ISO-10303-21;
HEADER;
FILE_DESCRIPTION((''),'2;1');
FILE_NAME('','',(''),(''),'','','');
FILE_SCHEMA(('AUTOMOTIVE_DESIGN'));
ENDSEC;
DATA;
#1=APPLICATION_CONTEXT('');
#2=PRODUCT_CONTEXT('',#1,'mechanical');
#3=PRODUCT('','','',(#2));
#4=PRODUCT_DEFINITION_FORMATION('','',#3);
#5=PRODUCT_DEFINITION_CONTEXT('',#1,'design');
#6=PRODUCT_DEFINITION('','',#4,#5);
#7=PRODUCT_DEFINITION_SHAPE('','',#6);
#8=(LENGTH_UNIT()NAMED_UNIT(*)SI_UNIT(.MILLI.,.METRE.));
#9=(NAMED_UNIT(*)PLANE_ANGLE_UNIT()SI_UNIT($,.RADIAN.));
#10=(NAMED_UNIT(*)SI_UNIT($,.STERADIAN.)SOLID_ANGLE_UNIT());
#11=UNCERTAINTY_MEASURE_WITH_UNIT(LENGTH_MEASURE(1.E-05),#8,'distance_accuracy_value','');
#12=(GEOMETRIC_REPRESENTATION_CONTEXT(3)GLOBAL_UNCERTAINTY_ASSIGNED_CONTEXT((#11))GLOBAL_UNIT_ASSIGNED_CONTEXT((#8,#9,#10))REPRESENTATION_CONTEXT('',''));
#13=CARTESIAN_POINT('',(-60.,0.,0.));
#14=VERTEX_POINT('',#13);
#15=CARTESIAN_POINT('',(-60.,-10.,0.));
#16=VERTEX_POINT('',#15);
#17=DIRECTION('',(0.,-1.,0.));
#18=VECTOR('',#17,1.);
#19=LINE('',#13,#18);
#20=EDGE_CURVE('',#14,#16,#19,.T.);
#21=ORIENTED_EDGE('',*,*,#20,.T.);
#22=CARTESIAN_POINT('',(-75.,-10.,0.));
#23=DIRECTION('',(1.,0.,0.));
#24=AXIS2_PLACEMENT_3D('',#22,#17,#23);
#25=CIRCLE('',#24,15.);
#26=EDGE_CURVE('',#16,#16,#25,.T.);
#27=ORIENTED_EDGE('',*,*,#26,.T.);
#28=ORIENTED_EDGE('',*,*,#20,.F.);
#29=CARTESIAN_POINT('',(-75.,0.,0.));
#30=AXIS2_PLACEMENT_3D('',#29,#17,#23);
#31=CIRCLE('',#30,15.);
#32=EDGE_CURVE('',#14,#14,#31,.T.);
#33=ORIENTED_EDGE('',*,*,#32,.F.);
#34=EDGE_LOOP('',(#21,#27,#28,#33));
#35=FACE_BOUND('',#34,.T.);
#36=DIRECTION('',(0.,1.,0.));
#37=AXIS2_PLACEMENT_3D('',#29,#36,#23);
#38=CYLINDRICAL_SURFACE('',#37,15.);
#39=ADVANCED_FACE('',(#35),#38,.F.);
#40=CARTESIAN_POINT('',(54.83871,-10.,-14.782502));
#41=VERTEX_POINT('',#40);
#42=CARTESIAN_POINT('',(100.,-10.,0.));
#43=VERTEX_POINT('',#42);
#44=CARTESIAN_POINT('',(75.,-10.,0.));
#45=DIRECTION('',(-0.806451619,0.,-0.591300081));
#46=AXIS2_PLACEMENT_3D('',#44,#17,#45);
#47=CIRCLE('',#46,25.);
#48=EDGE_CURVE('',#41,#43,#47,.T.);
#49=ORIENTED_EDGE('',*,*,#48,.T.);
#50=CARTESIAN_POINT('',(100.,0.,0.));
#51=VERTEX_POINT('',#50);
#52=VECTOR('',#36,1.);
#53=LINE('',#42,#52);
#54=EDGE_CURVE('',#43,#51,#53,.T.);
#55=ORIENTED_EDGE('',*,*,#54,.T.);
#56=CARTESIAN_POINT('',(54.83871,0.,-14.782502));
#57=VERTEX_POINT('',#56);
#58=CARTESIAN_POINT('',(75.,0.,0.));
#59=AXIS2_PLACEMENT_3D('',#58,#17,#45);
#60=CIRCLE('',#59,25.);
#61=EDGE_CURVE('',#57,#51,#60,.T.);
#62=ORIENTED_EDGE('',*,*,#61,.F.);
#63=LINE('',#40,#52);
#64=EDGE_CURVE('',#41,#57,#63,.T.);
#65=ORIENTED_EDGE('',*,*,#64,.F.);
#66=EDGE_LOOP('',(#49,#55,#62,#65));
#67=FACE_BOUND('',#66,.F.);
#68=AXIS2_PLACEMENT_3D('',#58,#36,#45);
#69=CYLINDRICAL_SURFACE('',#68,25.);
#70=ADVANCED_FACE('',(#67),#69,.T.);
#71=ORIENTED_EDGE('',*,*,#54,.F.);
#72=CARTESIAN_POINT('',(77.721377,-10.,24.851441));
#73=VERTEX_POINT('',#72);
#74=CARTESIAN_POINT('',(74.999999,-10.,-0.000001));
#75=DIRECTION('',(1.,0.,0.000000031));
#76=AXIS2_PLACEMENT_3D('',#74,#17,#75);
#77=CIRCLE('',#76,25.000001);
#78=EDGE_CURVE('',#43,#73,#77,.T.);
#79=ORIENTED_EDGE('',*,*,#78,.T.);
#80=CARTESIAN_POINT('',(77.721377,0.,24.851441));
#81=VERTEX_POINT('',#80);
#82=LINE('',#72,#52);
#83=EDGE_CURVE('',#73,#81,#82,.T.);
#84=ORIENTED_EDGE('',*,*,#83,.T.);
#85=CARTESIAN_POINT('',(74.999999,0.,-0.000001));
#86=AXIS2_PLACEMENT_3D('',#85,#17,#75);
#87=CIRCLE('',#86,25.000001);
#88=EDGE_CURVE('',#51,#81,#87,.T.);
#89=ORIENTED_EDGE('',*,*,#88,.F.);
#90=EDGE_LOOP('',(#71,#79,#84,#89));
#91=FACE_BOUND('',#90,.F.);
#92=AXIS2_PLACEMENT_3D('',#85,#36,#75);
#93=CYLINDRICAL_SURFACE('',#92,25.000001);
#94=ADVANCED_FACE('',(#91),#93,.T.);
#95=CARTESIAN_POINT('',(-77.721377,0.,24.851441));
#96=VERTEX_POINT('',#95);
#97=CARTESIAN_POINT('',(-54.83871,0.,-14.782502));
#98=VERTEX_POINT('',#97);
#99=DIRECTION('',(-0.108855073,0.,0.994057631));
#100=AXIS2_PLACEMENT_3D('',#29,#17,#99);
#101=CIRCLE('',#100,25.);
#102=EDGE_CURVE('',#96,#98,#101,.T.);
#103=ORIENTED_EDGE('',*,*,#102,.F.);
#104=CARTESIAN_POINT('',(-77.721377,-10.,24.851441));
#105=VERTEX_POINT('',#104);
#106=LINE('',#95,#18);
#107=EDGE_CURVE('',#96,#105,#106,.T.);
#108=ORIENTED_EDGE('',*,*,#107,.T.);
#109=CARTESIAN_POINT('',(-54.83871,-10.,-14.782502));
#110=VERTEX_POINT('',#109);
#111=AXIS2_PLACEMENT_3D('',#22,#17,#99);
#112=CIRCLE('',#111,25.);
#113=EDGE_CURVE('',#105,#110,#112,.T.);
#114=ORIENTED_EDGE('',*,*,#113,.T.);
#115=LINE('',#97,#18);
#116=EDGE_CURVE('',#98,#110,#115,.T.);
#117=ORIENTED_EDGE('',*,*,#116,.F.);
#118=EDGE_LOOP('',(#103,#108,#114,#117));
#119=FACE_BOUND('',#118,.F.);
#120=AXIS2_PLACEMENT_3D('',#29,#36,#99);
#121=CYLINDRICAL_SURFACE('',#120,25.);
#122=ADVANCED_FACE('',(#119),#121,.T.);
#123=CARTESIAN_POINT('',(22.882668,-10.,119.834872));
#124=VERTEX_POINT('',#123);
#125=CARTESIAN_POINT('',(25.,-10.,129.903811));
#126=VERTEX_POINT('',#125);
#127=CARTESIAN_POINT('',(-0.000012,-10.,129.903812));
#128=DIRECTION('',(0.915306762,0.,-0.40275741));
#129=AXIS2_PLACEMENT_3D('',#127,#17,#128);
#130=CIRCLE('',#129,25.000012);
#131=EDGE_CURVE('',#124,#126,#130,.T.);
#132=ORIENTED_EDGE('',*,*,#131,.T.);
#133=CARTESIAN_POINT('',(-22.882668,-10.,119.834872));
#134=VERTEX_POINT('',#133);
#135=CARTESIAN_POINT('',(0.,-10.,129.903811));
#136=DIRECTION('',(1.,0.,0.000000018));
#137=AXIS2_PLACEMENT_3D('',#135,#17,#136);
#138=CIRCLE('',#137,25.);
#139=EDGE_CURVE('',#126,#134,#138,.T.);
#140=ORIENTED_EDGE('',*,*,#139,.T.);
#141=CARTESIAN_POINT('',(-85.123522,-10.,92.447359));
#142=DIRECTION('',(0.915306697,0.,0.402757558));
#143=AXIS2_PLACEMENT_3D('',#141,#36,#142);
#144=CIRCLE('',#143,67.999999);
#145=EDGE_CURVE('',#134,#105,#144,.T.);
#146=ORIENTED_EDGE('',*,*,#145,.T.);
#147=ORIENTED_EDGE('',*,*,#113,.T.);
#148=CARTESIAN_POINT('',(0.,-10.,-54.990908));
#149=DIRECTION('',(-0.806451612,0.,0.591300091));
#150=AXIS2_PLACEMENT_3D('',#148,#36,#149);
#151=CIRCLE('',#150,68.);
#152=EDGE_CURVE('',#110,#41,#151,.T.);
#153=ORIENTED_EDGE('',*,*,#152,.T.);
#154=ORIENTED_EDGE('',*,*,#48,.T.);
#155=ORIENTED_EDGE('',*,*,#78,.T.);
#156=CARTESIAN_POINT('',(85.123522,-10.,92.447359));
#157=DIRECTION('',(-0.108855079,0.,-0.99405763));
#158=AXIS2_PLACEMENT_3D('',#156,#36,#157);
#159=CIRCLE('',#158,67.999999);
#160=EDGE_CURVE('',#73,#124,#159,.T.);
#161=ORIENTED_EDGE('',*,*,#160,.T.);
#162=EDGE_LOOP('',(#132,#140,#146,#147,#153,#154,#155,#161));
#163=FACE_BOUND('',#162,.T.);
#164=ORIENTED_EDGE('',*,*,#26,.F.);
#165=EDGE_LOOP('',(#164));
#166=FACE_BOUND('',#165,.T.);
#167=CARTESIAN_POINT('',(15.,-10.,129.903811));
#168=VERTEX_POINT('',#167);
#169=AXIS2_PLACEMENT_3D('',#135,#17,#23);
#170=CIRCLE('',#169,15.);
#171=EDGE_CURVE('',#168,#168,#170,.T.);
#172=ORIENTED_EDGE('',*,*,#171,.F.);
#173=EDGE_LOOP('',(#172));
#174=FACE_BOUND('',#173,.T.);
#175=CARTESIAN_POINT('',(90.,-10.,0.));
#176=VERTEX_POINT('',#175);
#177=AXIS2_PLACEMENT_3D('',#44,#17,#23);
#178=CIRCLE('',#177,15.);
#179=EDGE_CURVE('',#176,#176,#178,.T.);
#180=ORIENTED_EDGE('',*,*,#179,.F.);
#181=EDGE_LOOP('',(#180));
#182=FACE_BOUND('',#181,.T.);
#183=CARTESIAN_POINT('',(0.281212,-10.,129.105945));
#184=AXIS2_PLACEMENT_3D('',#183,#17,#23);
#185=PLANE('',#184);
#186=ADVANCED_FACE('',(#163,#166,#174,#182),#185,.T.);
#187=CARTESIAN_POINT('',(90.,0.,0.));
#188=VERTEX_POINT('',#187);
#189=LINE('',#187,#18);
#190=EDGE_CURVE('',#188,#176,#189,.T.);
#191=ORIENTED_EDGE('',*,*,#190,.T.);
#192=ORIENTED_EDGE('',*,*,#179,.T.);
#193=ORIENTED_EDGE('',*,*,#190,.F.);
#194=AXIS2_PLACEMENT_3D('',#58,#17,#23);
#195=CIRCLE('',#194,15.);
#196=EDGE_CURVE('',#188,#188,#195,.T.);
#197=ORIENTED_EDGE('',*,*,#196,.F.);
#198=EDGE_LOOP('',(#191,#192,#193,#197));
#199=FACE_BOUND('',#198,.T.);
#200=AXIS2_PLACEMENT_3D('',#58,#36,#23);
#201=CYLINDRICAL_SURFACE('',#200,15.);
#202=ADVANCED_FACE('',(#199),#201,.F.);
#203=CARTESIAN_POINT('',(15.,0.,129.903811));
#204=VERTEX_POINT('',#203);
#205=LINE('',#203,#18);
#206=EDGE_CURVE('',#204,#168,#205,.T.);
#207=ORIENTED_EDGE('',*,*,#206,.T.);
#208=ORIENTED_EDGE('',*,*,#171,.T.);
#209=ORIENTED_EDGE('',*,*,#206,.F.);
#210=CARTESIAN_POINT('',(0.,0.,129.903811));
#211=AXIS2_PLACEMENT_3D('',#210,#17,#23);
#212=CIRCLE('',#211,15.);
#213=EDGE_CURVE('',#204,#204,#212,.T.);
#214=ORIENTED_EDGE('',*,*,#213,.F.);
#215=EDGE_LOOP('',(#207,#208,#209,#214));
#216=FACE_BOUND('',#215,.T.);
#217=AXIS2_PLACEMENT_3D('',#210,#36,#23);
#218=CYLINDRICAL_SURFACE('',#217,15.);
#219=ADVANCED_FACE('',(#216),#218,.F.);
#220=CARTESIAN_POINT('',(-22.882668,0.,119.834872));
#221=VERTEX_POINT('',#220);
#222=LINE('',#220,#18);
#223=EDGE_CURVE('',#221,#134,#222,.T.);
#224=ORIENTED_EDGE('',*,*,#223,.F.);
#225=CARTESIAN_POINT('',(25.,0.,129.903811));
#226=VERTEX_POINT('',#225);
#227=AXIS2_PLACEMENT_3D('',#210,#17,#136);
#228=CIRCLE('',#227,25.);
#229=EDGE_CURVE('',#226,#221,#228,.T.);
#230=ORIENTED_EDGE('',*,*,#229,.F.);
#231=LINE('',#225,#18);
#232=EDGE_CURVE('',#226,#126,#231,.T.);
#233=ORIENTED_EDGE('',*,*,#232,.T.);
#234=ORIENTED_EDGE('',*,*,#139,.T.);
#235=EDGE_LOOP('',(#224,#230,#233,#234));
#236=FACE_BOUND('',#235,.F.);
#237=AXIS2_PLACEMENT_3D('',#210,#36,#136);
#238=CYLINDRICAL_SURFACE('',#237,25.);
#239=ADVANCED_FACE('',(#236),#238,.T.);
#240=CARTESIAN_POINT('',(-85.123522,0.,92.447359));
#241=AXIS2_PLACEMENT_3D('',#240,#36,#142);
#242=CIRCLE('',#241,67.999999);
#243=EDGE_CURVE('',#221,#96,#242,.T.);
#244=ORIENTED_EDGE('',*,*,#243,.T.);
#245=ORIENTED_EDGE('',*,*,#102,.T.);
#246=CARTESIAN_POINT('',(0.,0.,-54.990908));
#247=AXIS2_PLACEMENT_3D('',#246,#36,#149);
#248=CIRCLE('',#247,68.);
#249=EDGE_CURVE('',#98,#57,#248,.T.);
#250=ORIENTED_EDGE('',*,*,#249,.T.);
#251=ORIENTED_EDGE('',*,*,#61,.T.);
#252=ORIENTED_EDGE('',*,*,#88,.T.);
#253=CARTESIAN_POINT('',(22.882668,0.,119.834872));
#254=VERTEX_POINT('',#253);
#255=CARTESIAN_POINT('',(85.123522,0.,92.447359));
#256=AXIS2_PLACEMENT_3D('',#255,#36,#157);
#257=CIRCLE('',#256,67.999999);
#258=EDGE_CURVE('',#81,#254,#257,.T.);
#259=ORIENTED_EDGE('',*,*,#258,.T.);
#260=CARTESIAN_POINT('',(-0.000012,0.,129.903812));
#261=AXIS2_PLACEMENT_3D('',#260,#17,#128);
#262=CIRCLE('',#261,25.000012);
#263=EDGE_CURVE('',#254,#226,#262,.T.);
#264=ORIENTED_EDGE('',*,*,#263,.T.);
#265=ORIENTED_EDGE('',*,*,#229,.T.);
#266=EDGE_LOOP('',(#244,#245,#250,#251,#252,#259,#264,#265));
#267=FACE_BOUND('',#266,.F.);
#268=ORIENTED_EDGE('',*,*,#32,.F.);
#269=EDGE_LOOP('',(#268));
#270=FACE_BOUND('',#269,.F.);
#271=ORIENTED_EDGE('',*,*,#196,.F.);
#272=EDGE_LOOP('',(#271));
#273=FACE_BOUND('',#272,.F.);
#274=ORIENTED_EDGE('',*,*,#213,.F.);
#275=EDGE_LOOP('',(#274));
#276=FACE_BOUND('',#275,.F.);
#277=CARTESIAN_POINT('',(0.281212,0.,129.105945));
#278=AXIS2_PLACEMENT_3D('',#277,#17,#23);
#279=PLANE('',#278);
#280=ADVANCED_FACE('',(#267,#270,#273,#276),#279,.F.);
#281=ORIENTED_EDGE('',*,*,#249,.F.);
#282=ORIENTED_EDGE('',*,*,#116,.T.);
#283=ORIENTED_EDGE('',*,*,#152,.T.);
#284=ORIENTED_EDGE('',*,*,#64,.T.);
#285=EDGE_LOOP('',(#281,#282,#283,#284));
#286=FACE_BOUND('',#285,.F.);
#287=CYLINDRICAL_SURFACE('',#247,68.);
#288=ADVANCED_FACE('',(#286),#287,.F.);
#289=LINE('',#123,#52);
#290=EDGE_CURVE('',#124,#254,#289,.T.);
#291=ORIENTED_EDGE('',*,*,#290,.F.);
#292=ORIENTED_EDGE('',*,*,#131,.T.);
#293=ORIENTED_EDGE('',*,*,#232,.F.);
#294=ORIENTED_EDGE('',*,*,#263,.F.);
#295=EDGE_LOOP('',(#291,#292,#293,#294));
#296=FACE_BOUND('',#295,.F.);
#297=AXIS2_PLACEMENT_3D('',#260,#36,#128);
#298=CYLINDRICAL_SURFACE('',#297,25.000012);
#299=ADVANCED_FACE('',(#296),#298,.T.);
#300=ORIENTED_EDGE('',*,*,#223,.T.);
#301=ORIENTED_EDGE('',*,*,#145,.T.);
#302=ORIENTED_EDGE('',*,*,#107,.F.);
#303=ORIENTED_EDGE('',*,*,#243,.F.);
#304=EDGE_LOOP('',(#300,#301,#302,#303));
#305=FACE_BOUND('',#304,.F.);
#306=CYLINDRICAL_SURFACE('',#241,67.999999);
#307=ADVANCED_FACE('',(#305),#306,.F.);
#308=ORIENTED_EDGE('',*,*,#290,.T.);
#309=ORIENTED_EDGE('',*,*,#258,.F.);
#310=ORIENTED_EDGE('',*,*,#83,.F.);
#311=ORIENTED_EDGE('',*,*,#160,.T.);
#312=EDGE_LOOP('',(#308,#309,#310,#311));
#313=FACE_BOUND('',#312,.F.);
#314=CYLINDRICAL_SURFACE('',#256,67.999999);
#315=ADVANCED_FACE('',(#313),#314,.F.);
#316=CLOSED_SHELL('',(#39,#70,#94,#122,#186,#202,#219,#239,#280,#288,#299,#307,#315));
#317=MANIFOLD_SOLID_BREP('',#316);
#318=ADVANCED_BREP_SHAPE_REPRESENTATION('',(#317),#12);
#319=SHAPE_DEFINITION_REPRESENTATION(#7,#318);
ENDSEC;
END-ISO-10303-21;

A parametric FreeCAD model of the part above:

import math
import FreeCAD as App
import Part
import Sketcher

V = App.Vector
Q = App.Units.Quantity

doc = App.newDocument("Part")
body = doc.addObject("PartDesign::Body", "Body")

# Sketch on XZ plane
sketch1 = body.newObject("Sketcher::SketchObject", "Sketch")
sketch1.AttachmentSupport = (doc.getObject("XZ_Plane"), [""])
sketch1.MapMode = "FlatFace"
sketch1.addGeometry([
    Part.ArcOfCircle(Part.Circle(V(-0.000012, 129.903812, 0), V(0, 0, 1), 25.000012), math.radians(-23.750671), math.radians(-0.000003)),  # 0
    Part.ArcOfCircle(Part.Circle(V(0, 129.903811, 0), V(0, 0, 1), 25), math.radians(0.000001), math.radians(203.750679)),  # 1
    Part.ArcOfCircle(Part.Circle(V(-85.123522, 92.447359, 0), V(0, 0, 1), 67.999999), math.radians(-83.75068), math.radians(23.75068)),  # 2
    Part.ArcOfCircle(Part.Circle(V(-75, 0, 0), V(0, 0, 1), 25), math.radians(96.24932), math.radians(323.750679)),  # 3
    Part.ArcOfCircle(Part.Circle(V(0, -54.990908, 0), V(0, 0, 1), 68), math.radians(36.249321), math.radians(143.750679)),  # 4
    Part.ArcOfCircle(Part.Circle(V(75, 0, 0), V(0, 0, 1), 25), math.radians(-143.75068), math.radians(0)),  # 5
    Part.ArcOfCircle(Part.Circle(V(74.999999, -0.000001, 0), V(0, 0, 1), 25.000001), math.radians(0.000002), math.radians(83.750677)),  # 6
    Part.ArcOfCircle(Part.Circle(V(85.123522, 92.447359, 0), V(0, 0, 1), 67.999999), math.radians(156.24932), math.radians(263.75068)),  # 7
    Part.Circle(V(-75, 0, 0), V(0, 0, 1), 15),  # 8
    Part.Circle(V(75, 0, 0), V(0, 0, 1), 15),  # 9
    Part.Circle(V(0, 129.903811, 0), V(0, 0, 1), 15),  # 10
], False)
sketch1.addConstraint([
    Sketcher.Constraint("Tangent", 0, 2, 1, 1),
    Sketcher.Constraint("Tangent", 1, 2, 2, 2),
    Sketcher.Constraint("Tangent", 2, 1, 3, 1),
    Sketcher.Constraint("Tangent", 3, 2, 4, 2),
    Sketcher.Constraint("Tangent", 4, 1, 5, 1),
    Sketcher.Constraint("Tangent", 5, 2, 6, 1),
    Sketcher.Constraint("Tangent", 6, 2, 7, 2),
    Sketcher.Constraint("Tangent", 7, 1, 0, 1),
    Sketcher.Constraint("Coincident", 8, 3, 3, 3),
    Sketcher.Constraint("Coincident", 9, 3, 5, 3),
    Sketcher.Constraint("Coincident", 10, 3, 1, 3),
    Sketcher.Constraint("Equal", 1, 3),
    Sketcher.Constraint("Equal", 2, 4),
    Sketcher.Constraint("Equal", 3, 5),
    Sketcher.Constraint("Equal", 5, 6),
    Sketcher.Constraint("Equal", 4, 7),
    Sketcher.Constraint("Equal", 8, 9),
    Sketcher.Constraint("Equal", 9, 10),
    Sketcher.Constraint("Symmetric", 3, 3, 5, 3, -1, 1),
    Sketcher.Constraint("Symmetric", 2, 3, 7, 3, -2),
    Sketcher.Constraint("PointOnObject", 1, 3, -2),
    Sketcher.Constraint("PointOnObject", 5, 2, -1),
    Sketcher.Constraint("Horizontal", 10, 3, 0, 2),
    Sketcher.Constraint("Diameter", 8, Q("30 mm")),
    Sketcher.Constraint("Radius", 1, Q("25 mm")),
    Sketcher.Constraint("Radius", 2, Q("67.999999 mm")),
    Sketcher.Constraint("DistanceX", 3, 3, -1, 1, Q("75 mm")),
    Sketcher.Constraint("DistanceY", -1, 1, 1, 3, Q("129.903811 mm")),
])
pad1 = body.newObject("PartDesign::Pad", "Pad")
pad1.Profile = sketch1
pad1.Length = 5

# Sketch on XZ plane
sketch2 = body.newObject("Sketcher::SketchObject", "Sketch001")
sketch2.AttachmentSupport = (doc.getObject("XZ_Plane"), [""])
sketch2.MapMode = "FlatFace"
sketch2.addGeometry([
    Part.ArcOfCircle(Part.Circle(V(-0.000012, 129.903812, 0), V(0, 0, 1), 25.000012), math.radians(-23.750671), math.radians(-0.000003)),  # 0
    Part.ArcOfCircle(Part.Circle(V(0, 129.903811, 0), V(0, 0, 1), 25), math.radians(0.000001), math.radians(203.750679)),  # 1
    Part.ArcOfCircle(Part.Circle(V(-85.123522, 92.447359, 0), V(0, 0, 1), 67.999999), math.radians(-83.75068), math.radians(23.75068)),  # 2
    Part.ArcOfCircle(Part.Circle(V(-75, 0, 0), V(0, 0, 1), 25), math.radians(96.24932), math.radians(323.750679)),  # 3
    Part.ArcOfCircle(Part.Circle(V(0, -54.990908, 0), V(0, 0, 1), 68), math.radians(36.249321), math.radians(143.750679)),  # 4
    Part.ArcOfCircle(Part.Circle(V(75, 0, 0), V(0, 0, 1), 25), math.radians(-143.75068), math.radians(0)),  # 5
    Part.ArcOfCircle(Part.Circle(V(74.999999, -0.000001, 0), V(0, 0, 1), 25.000001), math.radians(0.000002), math.radians(83.750677)),  # 6
    Part.ArcOfCircle(Part.Circle(V(85.123522, 92.447359, 0), V(0, 0, 1), 67.999999), math.radians(156.24932), math.radians(263.75068)),  # 7
    Part.Circle(V(-75, 0, 0), V(0, 0, 1), 15),  # 8
    Part.Circle(V(75, 0, 0), V(0, 0, 1), 15),  # 9
    Part.Circle(V(0, 129.903811, 0), V(0, 0, 1), 15),  # 10
], False)
sketch2.addConstraint([
    Sketcher.Constraint("Tangent", 0, 2, 1, 1),
    Sketcher.Constraint("Tangent", 1, 2, 2, 2),
    Sketcher.Constraint("Tangent", 2, 1, 3, 1),
    Sketcher.Constraint("Tangent", 3, 2, 4, 2),
    Sketcher.Constraint("Tangent", 4, 1, 5, 1),
    Sketcher.Constraint("Tangent", 5, 2, 6, 1),
    Sketcher.Constraint("Tangent", 6, 2, 7, 2),
    Sketcher.Constraint("Tangent", 7, 1, 0, 1),
    Sketcher.Constraint("Coincident", 8, 3, 3, 3),
    Sketcher.Constraint("Coincident", 9, 3, 5, 3),
    Sketcher.Constraint("Coincident", 10, 3, 1, 3),
    Sketcher.Constraint("Equal", 1, 3),
    Sketcher.Constraint("Equal", 2, 4),
    Sketcher.Constraint("Equal", 3, 5),
    Sketcher.Constraint("Equal", 5, 6),
    Sketcher.Constraint("Equal", 4, 7),
    Sketcher.Constraint("Equal", 8, 9),
    Sketcher.Constraint("Equal", 9, 10),
    Sketcher.Constraint("Symmetric", 3, 3, 5, 3, -1, 1),
    Sketcher.Constraint("Symmetric", 2, 3, 7, 3, -2),
    Sketcher.Constraint("PointOnObject", 1, 3, -2),
    Sketcher.Constraint("PointOnObject", 5, 2, -1),
    Sketcher.Constraint("Horizontal", 10, 3, 0, 2),
    Sketcher.Constraint("Diameter", 8, Q("30 mm")),
    Sketcher.Constraint("Radius", 1, Q("25 mm")),
    Sketcher.Constraint("Radius", 2, Q("67.999999 mm")),
    Sketcher.Constraint("DistanceX", 3, 3, -1, 1, Q("75 mm")),
    Sketcher.Constraint("DistanceY", -1, 1, 1, 3, Q("129.903811 mm")),
])
pad2 = body.newObject("PartDesign::Pad", "Pad001")
pad2.Profile = sketch2
pad2.Length = 10

doc.recompute()
